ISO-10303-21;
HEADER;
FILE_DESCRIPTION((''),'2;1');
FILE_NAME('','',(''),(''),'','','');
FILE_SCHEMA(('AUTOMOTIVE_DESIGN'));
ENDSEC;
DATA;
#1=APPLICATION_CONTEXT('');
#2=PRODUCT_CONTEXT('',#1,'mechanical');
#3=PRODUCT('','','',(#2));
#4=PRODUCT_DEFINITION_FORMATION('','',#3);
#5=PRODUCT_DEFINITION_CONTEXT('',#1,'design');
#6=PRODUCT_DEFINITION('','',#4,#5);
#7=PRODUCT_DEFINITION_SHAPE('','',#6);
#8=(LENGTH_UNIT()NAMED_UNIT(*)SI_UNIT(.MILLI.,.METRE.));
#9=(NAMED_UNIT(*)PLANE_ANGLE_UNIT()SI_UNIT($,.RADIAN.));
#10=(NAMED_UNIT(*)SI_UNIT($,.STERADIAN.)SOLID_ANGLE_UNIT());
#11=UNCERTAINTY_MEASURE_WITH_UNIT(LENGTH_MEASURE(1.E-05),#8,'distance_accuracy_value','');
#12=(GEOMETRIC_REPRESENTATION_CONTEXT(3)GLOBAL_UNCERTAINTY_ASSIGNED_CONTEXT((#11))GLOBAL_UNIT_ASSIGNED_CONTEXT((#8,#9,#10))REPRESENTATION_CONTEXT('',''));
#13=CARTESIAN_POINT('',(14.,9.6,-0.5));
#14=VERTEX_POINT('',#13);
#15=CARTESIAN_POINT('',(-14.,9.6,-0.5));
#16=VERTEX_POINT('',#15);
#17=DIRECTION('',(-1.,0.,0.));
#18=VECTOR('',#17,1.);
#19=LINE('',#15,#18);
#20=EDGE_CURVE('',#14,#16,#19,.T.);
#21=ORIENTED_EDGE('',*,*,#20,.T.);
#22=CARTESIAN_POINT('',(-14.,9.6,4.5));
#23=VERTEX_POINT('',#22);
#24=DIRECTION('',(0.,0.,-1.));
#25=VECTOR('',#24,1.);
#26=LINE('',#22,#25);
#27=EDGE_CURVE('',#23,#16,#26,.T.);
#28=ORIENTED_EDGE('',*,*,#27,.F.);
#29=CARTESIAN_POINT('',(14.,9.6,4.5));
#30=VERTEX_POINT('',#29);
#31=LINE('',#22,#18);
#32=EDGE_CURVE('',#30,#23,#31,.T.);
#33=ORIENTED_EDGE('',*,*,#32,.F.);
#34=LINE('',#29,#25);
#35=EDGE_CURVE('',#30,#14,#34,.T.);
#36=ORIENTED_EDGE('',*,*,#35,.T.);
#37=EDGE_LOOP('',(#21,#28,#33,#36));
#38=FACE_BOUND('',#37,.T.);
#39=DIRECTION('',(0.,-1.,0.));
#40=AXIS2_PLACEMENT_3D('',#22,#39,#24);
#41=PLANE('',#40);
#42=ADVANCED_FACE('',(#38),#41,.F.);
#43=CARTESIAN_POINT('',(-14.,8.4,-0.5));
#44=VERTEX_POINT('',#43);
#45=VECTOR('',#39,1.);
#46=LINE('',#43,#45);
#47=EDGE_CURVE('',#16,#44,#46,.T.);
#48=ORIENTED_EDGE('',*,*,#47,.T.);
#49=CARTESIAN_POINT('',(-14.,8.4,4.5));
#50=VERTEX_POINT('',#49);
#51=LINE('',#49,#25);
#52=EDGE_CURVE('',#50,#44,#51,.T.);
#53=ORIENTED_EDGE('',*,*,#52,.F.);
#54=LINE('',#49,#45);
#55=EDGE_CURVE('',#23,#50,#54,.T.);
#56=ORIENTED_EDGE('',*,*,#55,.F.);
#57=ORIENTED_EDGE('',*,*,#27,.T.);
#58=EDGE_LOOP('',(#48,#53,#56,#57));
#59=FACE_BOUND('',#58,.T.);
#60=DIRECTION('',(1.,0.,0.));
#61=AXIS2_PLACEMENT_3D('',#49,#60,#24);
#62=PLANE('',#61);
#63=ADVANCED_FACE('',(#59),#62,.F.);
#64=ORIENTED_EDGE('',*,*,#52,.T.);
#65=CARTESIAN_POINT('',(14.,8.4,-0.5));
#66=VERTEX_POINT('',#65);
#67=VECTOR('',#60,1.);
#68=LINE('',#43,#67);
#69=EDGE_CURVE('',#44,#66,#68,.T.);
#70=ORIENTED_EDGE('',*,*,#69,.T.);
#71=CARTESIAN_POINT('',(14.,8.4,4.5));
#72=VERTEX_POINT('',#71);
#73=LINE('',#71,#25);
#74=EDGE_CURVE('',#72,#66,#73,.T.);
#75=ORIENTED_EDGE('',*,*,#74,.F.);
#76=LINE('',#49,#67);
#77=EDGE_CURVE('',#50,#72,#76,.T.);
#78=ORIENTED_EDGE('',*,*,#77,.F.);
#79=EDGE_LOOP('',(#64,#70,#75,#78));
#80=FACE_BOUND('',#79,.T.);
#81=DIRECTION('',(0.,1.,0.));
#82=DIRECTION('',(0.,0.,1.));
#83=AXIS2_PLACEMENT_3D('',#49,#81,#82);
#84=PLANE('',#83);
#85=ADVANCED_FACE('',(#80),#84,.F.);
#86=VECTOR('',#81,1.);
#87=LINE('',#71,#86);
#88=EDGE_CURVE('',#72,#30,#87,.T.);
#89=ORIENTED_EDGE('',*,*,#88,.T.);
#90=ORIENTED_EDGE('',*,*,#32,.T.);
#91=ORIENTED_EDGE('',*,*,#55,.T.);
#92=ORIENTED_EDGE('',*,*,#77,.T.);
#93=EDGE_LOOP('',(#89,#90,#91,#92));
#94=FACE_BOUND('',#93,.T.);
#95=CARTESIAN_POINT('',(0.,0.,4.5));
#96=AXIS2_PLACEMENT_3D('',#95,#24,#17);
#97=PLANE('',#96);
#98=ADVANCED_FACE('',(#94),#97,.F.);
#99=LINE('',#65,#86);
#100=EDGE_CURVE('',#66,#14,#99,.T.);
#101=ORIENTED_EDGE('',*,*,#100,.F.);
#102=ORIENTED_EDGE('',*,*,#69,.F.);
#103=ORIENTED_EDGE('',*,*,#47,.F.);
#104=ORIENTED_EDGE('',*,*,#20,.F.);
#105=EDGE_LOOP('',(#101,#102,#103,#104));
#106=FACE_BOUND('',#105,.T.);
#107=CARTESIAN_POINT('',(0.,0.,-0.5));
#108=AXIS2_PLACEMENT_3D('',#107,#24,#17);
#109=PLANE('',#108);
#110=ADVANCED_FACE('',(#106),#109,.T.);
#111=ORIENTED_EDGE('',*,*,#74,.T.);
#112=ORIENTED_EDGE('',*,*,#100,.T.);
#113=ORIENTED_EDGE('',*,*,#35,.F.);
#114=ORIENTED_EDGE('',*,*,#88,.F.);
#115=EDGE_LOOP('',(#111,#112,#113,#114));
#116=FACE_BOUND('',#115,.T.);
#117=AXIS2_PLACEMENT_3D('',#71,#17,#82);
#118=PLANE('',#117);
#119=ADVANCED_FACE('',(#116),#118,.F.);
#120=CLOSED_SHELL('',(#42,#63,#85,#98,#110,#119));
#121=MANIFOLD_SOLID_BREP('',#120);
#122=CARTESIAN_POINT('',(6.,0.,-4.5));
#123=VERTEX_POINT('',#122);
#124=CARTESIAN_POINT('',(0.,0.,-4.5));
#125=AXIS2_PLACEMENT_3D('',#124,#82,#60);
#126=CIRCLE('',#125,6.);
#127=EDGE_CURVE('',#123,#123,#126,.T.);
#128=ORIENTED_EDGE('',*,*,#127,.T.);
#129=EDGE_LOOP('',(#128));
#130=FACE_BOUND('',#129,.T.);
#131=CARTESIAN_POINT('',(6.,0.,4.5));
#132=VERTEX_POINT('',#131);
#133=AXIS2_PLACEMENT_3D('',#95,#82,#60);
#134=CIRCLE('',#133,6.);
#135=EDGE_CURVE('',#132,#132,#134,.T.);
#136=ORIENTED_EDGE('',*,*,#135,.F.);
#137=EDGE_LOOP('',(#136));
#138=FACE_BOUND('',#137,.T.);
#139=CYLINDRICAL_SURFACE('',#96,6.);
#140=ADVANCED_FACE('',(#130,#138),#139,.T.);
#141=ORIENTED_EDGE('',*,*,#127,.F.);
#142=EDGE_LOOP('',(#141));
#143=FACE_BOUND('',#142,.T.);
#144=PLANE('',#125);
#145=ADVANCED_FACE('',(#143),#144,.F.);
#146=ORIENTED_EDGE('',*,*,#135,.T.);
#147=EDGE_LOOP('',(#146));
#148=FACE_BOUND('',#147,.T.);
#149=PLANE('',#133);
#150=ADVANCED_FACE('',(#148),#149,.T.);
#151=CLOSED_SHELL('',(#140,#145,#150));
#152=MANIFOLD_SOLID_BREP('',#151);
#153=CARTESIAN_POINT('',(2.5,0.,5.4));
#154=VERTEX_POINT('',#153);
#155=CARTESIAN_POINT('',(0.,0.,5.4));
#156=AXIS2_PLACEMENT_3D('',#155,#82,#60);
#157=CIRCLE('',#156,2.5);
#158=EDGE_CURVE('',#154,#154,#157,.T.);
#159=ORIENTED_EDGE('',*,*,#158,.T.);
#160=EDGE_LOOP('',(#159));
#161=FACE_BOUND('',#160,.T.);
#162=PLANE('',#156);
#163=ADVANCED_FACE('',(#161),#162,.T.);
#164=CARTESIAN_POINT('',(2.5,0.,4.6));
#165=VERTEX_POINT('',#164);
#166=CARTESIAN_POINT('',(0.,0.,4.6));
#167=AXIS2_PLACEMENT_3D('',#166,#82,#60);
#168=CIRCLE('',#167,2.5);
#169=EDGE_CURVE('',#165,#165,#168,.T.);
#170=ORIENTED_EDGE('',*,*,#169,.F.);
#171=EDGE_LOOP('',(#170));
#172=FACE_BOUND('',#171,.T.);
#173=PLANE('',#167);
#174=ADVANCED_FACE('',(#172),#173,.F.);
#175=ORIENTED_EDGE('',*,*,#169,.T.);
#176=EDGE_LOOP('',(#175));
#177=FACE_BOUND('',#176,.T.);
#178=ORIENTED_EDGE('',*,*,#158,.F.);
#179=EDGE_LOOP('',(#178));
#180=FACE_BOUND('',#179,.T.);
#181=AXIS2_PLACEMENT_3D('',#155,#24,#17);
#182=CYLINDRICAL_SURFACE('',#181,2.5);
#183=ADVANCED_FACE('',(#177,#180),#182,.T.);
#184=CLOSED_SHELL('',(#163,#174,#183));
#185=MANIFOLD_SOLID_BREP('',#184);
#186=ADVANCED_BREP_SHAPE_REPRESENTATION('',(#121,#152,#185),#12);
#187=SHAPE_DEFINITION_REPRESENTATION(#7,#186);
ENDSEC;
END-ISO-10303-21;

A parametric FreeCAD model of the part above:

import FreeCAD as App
import Part
import Sketcher
Q = App.Units.Quantity

doc = App.newDocument("Part")
body = doc.addObject("PartDesign::Body", "Body")

# Sketch on XY plane
sketch1 = body.newObject("Sketcher::SketchObject", "Sketch")
sketch1.AttachmentSupport = (doc.getObject("XY_Plane"), [""])
sketch1.MapMode = "FlatFace"
sketch1.AttachmentOffset = App.Placement(App.Vector(0, 0, -4.5), App.Rotation())
sketch1.addGeometry(Part.Circle(App.Vector(0, 0, 0), App.Vector(0, 0, 1), 6), False)
sketch1.addConstraint([
    Sketcher.Constraint("Coincident", 0, 3, -1, 1),
    Sketcher.Constraint("Diameter", 0, Q("12 mm")),
])
pad1 = body.newObject("PartDesign::Pad", "Pad")
pad1.Profile = sketch1
pad1.Length = 9
body2 = doc.addObject("PartDesign::Body", "Body001")

# Sketch on XY plane
sketch2 = body2.newObject("Sketcher::SketchObject", "Sketch001")
sketch2.AttachmentSupport = (doc.getObject("XY_Plane001"), [""])
sketch2.MapMode = "FlatFace"
sketch2.AttachmentOffset = App.Placement(App.Vector(0, 0, 4.6), App.Rotation())
sketch2.addGeometry(Part.Circle(App.Vector(0, 0, 0), App.Vector(0, 0, 1), 2.5), False)
sketch2.addConstraint([
    Sketcher.Constraint("Coincident", 0, 3, -1, 1),
    Sketcher.Constraint("Diameter", 0, Q("5 mm")),
])
pad2 = body2.newObject("PartDesign::Pad", "Pad001")
pad2.Profile = sketch2
pad2.Length = 0.8
body3 = doc.addObject("PartDesign::Body", "Body002")

# Sketch on XY plane
sketch3 = body3.newObject("Sketcher::SketchObject", "Sketch002")
sketch3.AttachmentSupport = (doc.getObject("XY_Plane002"), [""])
sketch3.MapMode = "FlatFace"
sketch3.AttachmentOffset = App.Placement(App.Vector(0, 0, -0.5), App.Rotation())
sketch3.addGeometry([
    Part.LineSegment(App.Vector(-14, 9.6, 0), App.Vector(-14, 8.4, 0)),
    Part.LineSegment(App.Vector(-14, 8.4, 0), App.Vector(14, 8.4, 0)),
    Part.LineSegment(App.Vector(14, 8.4, 0), App.Vector(14, 9.6, 0)),
    Part.LineSegment(App.Vector(14, 9.6, 0), App.Vector(-14, 9.6, 0)),
], False)
sketch3.addConstraint([
    Sketcher.Constraint("Coincident", 0, 2, 1, 1),
    Sketcher.Constraint("Coincident", 1, 2, 2, 1),
    Sketcher.Constraint("Coincident", 2, 2, 3, 1),
    Sketcher.Constraint("Coincident", 3, 2, 0, 1),
    Sketcher.Constraint("Vertical", 0),
    Sketcher.Constraint("Horizontal", 1),
    Sketcher.Constraint("Vertical", 2),
    Sketcher.Constraint("Horizontal", 3),
    Sketcher.Constraint("DistanceX", 1, 1, 1, 2, Q("28 mm")),
    Sketcher.Constraint("DistanceY", 0, 2, 0, 1, Q("1.2 mm")),
    Sketcher.Constraint("DistanceX", 0, 2, -1, 1, Q("14 mm")),
    Sketcher.Constraint("DistanceY", -1, 1, 0, 2, Q("8.4 mm")),
])
pad3 = body3.newObject("PartDesign::Pad", "Pad002")
pad3.Profile = sketch3
pad3.Length = 5

doc.recompute()
